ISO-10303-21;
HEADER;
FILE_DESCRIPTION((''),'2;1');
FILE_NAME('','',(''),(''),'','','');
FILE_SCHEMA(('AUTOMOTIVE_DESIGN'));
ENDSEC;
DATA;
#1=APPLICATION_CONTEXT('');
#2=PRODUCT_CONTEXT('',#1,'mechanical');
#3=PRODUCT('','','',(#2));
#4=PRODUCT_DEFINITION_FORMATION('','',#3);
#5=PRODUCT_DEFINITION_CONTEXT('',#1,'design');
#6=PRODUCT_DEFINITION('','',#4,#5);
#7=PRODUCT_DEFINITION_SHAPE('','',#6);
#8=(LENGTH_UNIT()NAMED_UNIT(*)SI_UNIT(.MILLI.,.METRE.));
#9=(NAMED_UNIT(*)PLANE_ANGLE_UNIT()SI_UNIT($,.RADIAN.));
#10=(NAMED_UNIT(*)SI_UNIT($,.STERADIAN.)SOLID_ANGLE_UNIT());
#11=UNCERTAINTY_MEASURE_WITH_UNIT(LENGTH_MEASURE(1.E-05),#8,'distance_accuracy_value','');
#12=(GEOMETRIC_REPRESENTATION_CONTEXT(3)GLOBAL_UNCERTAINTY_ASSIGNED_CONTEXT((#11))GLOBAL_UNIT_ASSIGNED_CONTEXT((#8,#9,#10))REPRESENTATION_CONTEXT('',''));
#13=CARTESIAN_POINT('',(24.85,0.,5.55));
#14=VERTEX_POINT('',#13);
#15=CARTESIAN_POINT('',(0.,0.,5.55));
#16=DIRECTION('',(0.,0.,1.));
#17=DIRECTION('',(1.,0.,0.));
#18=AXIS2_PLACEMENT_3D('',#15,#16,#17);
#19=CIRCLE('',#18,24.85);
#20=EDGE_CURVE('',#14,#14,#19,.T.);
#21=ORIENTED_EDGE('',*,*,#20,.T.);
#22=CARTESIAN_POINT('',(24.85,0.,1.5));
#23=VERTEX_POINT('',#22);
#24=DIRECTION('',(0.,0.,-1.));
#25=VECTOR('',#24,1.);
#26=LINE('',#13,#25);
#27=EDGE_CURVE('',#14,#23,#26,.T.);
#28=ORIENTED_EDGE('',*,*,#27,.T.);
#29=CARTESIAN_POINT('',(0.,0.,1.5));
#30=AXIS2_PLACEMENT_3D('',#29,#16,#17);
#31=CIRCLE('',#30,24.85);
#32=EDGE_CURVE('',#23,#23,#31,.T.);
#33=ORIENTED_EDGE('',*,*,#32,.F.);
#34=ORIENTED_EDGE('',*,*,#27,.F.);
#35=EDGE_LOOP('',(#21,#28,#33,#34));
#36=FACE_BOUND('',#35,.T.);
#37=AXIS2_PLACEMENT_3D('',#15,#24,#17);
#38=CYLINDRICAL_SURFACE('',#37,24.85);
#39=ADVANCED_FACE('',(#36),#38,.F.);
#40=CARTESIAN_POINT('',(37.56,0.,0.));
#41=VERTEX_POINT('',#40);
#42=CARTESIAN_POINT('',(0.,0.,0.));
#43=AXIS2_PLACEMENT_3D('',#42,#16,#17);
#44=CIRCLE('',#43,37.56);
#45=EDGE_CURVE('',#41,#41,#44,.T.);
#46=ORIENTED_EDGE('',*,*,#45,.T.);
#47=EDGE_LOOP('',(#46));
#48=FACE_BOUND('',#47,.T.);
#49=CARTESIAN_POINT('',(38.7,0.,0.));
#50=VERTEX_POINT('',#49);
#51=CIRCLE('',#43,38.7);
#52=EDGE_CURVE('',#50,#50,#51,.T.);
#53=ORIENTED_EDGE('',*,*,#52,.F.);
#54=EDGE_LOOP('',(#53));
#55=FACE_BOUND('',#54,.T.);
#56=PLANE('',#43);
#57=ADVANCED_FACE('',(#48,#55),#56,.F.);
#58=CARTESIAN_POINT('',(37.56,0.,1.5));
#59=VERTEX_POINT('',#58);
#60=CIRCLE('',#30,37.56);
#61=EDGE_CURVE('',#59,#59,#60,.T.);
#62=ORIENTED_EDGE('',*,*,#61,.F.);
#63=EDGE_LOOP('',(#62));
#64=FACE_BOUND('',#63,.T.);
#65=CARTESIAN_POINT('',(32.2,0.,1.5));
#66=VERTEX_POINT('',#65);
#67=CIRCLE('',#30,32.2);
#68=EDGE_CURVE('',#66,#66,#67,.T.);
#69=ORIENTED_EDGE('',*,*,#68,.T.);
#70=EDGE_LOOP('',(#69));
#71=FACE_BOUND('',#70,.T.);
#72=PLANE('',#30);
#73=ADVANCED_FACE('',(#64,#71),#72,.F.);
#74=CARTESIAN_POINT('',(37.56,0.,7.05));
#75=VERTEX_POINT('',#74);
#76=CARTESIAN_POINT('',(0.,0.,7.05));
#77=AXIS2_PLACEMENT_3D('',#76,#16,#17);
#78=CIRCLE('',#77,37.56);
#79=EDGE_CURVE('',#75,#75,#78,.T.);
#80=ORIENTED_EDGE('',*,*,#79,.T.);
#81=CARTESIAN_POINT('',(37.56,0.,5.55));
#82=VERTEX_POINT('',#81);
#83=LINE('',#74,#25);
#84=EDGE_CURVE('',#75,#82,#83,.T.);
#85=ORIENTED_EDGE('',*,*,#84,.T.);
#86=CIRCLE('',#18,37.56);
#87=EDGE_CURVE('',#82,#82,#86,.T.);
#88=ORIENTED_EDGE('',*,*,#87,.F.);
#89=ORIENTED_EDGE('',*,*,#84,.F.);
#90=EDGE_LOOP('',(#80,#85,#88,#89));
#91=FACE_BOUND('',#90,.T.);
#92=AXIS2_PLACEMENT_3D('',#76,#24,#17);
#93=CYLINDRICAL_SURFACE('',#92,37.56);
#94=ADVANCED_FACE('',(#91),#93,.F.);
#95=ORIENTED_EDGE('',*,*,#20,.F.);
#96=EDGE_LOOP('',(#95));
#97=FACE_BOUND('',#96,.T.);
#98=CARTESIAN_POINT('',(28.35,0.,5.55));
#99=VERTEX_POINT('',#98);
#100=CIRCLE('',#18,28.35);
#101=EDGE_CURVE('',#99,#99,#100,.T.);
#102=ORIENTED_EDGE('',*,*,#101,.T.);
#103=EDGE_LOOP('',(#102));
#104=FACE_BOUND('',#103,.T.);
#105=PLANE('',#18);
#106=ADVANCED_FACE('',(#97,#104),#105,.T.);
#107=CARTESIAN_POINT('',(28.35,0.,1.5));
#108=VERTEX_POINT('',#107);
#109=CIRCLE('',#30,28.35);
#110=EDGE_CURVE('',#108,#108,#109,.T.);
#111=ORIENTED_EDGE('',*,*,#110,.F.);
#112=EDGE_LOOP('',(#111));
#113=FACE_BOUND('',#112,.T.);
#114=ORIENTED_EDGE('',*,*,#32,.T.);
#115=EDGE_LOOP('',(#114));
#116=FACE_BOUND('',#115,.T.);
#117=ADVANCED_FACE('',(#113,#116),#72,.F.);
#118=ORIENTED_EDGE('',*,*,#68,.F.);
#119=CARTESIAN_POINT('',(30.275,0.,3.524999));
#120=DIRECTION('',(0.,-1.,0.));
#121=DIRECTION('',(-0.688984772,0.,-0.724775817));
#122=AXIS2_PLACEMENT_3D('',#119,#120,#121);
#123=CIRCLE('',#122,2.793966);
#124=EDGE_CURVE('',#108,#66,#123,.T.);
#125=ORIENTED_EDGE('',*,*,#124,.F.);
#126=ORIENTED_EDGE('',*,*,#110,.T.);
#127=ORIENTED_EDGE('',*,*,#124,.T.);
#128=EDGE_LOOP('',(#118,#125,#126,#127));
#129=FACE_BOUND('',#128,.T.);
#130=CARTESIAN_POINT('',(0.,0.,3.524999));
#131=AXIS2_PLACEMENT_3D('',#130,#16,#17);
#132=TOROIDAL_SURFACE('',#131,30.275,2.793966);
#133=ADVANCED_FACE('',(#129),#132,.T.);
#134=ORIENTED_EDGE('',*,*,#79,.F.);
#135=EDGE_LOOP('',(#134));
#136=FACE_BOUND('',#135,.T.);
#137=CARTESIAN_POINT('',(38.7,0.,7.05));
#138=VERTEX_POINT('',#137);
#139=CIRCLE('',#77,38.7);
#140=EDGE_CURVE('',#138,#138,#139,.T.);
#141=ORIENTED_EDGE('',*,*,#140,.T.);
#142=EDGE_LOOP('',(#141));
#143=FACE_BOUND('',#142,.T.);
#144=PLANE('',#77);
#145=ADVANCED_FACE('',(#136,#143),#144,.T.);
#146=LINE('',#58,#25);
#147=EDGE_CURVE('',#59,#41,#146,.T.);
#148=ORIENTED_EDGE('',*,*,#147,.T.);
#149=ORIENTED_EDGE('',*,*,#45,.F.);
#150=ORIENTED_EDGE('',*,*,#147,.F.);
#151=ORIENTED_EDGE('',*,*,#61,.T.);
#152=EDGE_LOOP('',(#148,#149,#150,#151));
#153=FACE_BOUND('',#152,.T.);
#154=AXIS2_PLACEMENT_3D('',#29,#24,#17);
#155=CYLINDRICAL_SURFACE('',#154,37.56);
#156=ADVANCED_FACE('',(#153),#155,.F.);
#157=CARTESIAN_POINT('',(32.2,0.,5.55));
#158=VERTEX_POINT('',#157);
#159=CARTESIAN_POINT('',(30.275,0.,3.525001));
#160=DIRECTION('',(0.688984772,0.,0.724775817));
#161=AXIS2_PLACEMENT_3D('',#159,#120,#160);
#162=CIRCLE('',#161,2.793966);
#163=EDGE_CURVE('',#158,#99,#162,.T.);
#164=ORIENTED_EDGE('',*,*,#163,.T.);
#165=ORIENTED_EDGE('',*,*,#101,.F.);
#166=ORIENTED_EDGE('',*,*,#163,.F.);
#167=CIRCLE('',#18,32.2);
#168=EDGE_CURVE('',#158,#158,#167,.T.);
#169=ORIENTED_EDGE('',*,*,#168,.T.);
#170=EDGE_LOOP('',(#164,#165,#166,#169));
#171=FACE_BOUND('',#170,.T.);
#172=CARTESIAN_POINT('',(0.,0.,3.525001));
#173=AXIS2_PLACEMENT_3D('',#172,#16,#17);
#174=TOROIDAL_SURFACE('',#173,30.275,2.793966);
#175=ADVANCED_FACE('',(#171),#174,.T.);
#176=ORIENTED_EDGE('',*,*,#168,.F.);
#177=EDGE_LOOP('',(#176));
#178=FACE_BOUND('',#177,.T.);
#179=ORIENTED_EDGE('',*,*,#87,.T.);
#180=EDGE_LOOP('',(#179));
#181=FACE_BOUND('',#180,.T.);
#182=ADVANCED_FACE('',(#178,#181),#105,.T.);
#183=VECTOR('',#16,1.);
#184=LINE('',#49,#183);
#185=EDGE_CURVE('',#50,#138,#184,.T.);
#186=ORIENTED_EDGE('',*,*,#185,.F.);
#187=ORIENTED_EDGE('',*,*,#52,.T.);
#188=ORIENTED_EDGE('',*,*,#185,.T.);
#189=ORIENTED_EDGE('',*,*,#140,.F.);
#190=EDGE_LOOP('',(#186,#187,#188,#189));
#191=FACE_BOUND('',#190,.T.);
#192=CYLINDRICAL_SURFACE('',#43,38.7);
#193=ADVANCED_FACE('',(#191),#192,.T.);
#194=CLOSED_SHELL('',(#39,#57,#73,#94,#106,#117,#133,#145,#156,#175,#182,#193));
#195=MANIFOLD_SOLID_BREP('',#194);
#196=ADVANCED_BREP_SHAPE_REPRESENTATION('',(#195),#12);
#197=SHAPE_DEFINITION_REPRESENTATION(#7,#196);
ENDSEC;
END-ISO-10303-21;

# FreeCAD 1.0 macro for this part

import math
import FreeCAD as App
import Part
import Sketcher
Q = App.Units.Quantity

doc = App.newDocument("Part")
params = doc.addObject("Spreadsheet::Sheet", "Params")
for row, (alias, value) in enumerate([
    ("sketch1_width", "3.5 mm"),
    ("sketch1_height", "1.5 mm"),
    ("sketch1_width2", "5.36 mm"),
    ("sketch1_width3", "1.14 mm"),
    ("sketch1_height2", "7.05 mm"),
    ("revolution_angle", "360 deg"),
], start=1):
    params.set(f"A{row}", alias)
    params.set(f"B{row}", "=" + value)
    params.setAlias(f"B{row}", alias)

body = doc.addObject("PartDesign::Body", "Body")

sketch1 = body.newObject("Sketcher::SketchObject", "Sketch")
sketch1.AttachmentSupport = (doc.getObject("XZ_Plane"), [""])
sketch1.MapMode = "FlatFace"
sketch1.addGeometry([
    Part.LineSegment(App.Vector(24.85, 1.5, 0), App.Vector(28.35, 1.5, 0)),
    Part.ArcOfCircle(Part.Circle(App.Vector(30.275, 3.524999, 0), App.Vector(0, 0, 1), 2.793966), math.radians(-133.549798), math.radians(-46.450202)),
    Part.LineSegment(App.Vector(32.2, 1.5, 0), App.Vector(37.56, 1.5, 0)),
    Part.LineSegment(App.Vector(37.56, 1.5, 0), App.Vector(37.56, 0, 0)),
    Part.LineSegment(App.Vector(37.56, 0, 0), App.Vector(38.7, 0, 0)),
    Part.LineSegment(App.Vector(38.7, 0, 0), App.Vector(38.7, 7.05, 0)),
    Part.LineSegment(App.Vector(38.7, 7.05, 0), App.Vector(37.56, 7.05, 0)),
    Part.LineSegment(App.Vector(37.56, 7.05, 0), App.Vector(37.56, 5.55, 0)),
    Part.LineSegment(App.Vector(37.56, 5.55, 0), App.Vector(32.2, 5.55, 0)),
    Part.ArcOfCircle(Part.Circle(App.Vector(30.275, 3.525001, 0), App.Vector(0, 0, 1), 2.793966), math.radians(46.450202), math.radians(133.549798)),
    Part.LineSegment(App.Vector(28.35, 5.55, 0), App.Vector(24.85, 5.55, 0)),
    Part.LineSegment(App.Vector(24.85, 5.55, 0), App.Vector(24.85, 1.5, 0)),
], False)
sketch1.addConstraint([
    Sketcher.Constraint("Coincident", 0, 2, 1, 1),
    Sketcher.Constraint("Coincident", 1, 2, 2, 1),
    Sketcher.Constraint("Coincident", 2, 2, 3, 1),
    Sketcher.Constraint("Coincident", 3, 2, 4, 1),
    Sketcher.Constraint("Coincident", 4, 2, 5, 1),
    Sketcher.Constraint("Coincident", 5, 2, 6, 1),
    Sketcher.Constraint("Coincident", 6, 2, 7, 1),
    Sketcher.Constraint("Coincident", 7, 2, 8, 1),
    Sketcher.Constraint("Coincident", 8, 2, 9, 1),
    Sketcher.Constraint("Coincident", 9, 2, 10, 1),
    Sketcher.Constraint("Coincident", 10, 2, 11, 1),
    Sketcher.Constraint("Coincident", 11, 2, 0, 1),
    Sketcher.Constraint("Horizontal", 0),
    Sketcher.Constraint("Horizontal", 2),
    Sketcher.Constraint("Vertical", 3),
    Sketcher.Constraint("Horizontal", 4),
    Sketcher.Constraint("Vertical", 5),
    Sketcher.Constraint("Horizontal", 6),
    Sketcher.Constraint("Vertical", 7),
    Sketcher.Constraint("Horizontal", 8),
    Sketcher.Constraint("Horizontal", 10),
    Sketcher.Constraint("Vertical", 11),
    Sketcher.Constraint("Coincident", 9, 3, 1, 3),
    Sketcher.Constraint("Equal", 1, 9),
    Sketcher.Constraint("PointOnObject", 3, 2, -1),
    Sketcher.Constraint("Horizontal", 0, 2, 1, 2),
    Sketcher.Constraint("Horizontal", 8, 2, 9, 2),
    Sketcher.Constraint("Vertical", 3, 2, 6, 2),
    Sketcher.Constraint("Vertical", 1, 2, 8, 2),
    Sketcher.Constraint("Equal", 3, 7),
    Sketcher.Constraint("DistanceX", 0, 1, 0, 2, Q("3.5 mm")),
    Sketcher.Constraint("DistanceY", 3, 2, 3, 1, Q("1.5 mm")),
    Sketcher.Constraint("DistanceX", 2, 1, 2, 2, Q("5.36 mm")),
    Sketcher.Constraint("DistanceX", 4, 1, 4, 2, Q("1.14 mm")),
    Sketcher.Constraint("DistanceY", 5, 1, 5, 2, Q("7.05 mm")),
    Sketcher.Constraint("DistanceX", -1, 1, 1, 2, Q("32.2 mm")),
    Sketcher.Constraint("DistanceX", -1, 1, 0, 2, Q("28.35 mm")),
])
sketch1.setExpression("Constraints[30]", "Params.sketch1_width")
sketch1.setExpression("Constraints[31]", "Params.sketch1_height")
sketch1.setExpression("Constraints[32]", "Params.sketch1_width2")
sketch1.setExpression("Constraints[33]", "Params.sketch1_width3")
sketch1.setExpression("Constraints[34]", "Params.sketch1_height2")
revolution = body.newObject("PartDesign::Revolution", "Revolution")
revolution.Profile = sketch1
revolution.ReferenceAxis = (sketch1, ["V_Axis"])
revolution.setExpression("Angle", "Params.revolution_angle")

doc.recompute()
